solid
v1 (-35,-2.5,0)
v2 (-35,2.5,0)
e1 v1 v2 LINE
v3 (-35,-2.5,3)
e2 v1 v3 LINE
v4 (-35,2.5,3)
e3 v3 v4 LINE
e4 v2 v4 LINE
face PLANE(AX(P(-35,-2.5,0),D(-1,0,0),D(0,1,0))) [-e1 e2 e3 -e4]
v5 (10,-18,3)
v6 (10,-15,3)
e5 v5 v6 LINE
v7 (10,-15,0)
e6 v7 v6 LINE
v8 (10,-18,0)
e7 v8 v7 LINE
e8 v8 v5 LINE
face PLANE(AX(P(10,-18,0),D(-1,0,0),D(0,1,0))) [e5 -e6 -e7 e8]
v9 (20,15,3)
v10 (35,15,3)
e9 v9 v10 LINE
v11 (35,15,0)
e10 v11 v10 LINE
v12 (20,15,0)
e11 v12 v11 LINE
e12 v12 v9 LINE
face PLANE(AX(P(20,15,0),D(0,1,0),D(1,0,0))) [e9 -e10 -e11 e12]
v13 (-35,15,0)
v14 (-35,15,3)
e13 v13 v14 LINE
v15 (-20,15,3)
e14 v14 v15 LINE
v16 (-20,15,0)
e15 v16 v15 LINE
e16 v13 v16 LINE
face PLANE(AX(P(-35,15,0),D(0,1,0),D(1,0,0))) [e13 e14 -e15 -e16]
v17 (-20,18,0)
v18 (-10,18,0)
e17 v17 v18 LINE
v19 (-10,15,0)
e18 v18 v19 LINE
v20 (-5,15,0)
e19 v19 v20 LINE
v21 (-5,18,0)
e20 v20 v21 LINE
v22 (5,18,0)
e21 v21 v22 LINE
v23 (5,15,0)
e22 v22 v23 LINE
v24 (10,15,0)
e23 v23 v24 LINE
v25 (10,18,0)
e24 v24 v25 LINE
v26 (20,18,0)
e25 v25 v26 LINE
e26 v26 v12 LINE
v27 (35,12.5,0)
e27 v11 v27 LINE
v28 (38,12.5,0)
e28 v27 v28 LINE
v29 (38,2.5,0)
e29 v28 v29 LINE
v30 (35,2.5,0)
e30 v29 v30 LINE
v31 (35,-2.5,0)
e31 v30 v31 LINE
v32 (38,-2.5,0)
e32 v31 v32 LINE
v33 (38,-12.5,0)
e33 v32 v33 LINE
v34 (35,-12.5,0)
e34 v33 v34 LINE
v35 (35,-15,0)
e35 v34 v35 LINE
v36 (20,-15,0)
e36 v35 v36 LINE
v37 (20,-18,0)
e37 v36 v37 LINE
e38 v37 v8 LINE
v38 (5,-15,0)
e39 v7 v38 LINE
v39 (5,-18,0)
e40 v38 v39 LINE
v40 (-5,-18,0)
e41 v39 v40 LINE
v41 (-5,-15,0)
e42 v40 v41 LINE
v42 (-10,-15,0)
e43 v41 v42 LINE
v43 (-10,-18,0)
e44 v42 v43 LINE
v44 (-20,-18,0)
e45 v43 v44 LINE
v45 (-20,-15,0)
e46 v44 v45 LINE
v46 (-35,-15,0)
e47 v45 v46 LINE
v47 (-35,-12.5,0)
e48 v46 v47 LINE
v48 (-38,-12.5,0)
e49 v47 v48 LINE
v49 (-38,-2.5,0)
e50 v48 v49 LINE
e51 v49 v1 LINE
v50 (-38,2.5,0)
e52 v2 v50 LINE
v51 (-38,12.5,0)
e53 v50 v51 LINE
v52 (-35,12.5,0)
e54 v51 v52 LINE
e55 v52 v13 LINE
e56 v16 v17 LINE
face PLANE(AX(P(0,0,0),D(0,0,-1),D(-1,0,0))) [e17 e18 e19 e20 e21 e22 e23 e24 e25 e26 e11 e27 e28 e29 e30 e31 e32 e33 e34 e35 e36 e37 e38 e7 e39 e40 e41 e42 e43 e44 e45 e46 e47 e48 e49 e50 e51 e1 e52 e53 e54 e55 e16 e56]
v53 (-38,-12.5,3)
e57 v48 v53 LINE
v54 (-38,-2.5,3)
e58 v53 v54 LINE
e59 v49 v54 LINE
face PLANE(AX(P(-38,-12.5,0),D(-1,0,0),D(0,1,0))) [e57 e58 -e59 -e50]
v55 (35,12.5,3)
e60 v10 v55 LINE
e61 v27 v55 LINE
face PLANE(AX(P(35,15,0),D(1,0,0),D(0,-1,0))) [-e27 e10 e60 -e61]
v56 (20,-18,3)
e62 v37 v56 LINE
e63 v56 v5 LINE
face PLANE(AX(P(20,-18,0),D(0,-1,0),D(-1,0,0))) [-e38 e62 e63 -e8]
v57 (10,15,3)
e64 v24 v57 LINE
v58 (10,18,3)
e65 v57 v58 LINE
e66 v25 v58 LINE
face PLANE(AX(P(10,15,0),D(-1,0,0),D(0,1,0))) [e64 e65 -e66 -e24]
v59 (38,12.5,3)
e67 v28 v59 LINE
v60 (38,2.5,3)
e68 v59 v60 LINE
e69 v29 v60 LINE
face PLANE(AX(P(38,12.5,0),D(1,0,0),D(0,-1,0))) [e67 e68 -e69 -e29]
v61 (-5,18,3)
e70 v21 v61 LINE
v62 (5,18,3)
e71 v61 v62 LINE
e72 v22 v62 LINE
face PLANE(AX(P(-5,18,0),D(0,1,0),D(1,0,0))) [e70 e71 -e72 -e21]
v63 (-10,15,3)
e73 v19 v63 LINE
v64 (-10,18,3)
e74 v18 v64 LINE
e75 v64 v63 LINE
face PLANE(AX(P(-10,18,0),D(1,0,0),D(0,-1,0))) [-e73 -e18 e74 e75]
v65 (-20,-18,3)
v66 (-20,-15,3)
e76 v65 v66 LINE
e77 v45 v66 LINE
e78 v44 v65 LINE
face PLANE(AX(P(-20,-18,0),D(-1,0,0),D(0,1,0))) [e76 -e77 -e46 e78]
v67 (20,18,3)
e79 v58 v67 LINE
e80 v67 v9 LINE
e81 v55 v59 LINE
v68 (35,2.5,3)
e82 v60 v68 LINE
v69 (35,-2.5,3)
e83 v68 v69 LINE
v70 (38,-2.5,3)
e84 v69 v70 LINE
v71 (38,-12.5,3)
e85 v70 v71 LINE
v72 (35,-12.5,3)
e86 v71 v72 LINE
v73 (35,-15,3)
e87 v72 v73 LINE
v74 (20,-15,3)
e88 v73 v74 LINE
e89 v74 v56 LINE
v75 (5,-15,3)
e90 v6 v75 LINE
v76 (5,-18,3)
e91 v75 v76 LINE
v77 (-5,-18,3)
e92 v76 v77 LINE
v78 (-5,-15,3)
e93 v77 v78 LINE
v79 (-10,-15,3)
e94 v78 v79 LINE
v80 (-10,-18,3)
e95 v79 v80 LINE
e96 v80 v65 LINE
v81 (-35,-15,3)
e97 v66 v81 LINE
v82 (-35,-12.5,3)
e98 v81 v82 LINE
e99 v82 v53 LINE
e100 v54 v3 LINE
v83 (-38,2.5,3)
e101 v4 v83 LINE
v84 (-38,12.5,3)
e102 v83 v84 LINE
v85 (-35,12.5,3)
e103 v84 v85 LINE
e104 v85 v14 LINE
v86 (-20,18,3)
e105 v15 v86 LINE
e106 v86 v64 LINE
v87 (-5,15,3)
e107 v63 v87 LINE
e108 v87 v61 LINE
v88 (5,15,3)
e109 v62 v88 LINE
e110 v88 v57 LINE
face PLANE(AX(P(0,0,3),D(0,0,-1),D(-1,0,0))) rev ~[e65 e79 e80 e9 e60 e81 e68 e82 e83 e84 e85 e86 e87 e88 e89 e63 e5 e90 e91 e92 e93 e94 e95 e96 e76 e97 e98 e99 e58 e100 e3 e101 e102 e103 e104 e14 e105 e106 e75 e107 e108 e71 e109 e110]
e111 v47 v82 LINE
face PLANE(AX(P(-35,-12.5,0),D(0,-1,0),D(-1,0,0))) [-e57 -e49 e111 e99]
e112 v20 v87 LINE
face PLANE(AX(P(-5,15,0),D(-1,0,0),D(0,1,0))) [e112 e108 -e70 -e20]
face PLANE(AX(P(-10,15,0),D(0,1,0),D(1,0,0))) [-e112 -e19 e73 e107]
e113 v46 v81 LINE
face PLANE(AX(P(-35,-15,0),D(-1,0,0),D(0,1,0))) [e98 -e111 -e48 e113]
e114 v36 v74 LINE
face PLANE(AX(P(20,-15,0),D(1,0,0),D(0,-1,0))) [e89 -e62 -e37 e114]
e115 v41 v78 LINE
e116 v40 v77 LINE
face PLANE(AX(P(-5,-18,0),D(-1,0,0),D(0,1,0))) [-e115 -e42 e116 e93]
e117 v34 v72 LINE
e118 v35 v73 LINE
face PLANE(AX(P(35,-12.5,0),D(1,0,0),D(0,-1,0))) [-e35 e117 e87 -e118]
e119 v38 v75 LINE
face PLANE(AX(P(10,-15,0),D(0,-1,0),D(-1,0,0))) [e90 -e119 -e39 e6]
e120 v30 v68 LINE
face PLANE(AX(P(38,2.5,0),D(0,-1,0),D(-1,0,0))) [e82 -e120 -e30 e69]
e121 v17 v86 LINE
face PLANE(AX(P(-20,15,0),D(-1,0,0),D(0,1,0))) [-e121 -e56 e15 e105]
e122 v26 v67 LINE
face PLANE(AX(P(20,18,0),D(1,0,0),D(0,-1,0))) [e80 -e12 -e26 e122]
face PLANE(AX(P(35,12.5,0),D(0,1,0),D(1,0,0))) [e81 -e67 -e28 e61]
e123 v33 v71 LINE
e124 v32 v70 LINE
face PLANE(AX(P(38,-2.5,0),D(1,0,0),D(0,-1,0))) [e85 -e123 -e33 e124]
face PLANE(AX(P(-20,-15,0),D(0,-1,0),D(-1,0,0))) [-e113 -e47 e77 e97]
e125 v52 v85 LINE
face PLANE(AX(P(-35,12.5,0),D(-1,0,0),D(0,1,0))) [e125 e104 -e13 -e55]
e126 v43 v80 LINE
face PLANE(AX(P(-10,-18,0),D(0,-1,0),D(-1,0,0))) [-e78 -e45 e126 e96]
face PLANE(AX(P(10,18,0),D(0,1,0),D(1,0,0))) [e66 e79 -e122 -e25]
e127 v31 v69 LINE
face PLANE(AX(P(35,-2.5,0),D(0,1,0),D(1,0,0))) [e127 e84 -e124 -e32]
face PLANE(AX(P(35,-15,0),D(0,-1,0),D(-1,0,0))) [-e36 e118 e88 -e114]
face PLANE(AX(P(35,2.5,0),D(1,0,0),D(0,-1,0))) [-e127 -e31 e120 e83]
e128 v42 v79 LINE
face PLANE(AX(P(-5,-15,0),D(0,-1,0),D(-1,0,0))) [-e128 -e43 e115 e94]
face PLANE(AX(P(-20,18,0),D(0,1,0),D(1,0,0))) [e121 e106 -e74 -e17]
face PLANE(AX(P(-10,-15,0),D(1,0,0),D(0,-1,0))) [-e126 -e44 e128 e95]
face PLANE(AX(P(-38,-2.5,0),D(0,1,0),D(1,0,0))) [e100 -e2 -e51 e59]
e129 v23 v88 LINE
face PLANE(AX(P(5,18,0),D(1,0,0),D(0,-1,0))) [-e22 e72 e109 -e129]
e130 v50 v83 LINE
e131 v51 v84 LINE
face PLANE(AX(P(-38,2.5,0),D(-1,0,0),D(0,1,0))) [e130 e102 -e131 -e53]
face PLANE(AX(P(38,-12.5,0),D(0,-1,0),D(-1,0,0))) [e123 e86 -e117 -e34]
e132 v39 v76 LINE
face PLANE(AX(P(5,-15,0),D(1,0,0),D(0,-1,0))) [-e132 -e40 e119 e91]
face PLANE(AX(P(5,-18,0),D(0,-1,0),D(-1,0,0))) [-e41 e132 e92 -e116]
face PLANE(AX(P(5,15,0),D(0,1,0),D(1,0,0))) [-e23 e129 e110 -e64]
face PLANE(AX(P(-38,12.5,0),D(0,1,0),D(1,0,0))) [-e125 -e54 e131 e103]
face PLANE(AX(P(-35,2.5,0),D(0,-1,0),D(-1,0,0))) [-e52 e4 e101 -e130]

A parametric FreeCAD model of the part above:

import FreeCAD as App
import Part
import Sketcher
from FreeCAD import Vector
Q = App.Units.Quantity


def add_polygon(sketch, points):
    """Adds a closed chain of lines whose ends are joined by coincident constraints."""
    first, n = sketch.GeometryCount, len(points)
    for a, b in zip(points, points[1:] + points[:1]):
        sketch.addGeometry(Part.LineSegment(App.Vector(*a, 0), App.Vector(*b, 0)), False)
    for i in range(n):
        sketch.addConstraint(Sketcher.Constraint("Coincident", first + i, 2, first + (i + 1) % n, 1))

doc = App.newDocument("Part")
body = doc.addObject("PartDesign::Body", "Body")

sketch1 = body.newObject("Sketcher::SketchObject", "Sketch")
sketch1.AttachmentSupport = (doc.getObject("XY_Plane"), [""])
sketch1.MapMode = "FlatFace"
add_polygon(sketch1, [(-5, 18), (-5, 15), (-10, 15), (-10, 18), (-20, 18), (-20, 15), (-35, 15), (-35, 12.5), (-38, 12.5), (-38, 2.5), (-35, 2.5), (-35, -2.5), (-38, -2.5), (-38, -12.5), (-35, -12.5), (-35, -15), (-20, -15), (-20, -18), (-10, -18), (-10, -15), (-5, -15), (-5, -18), (5, -18), (5, -15), (10, -15), (10, -18), (20, -18), (20, -15), (35, -15), (35, -12.5), (38, -12.5), (38, -2.5), (35, -2.5), (35, 2.5), (38, 2.5), (38, 12.5), (35, 12.5), (35, 15), (20, 15), (20, 18), (10, 18), (10, 15), (5, 15), (5, 18)])
sketch1.addConstraint(Sketcher.Constraint("Vertical", 0))
sketch1.addConstraint(Sketcher.Constraint("Horizontal", 1))
sketch1.addConstraint(Sketcher.Constraint("Vertical", 2))
sketch1.addConstraint(Sketcher.Constraint("Horizontal", 3))
sketch1.addConstraint(Sketcher.Constraint("Vertical", 4))
sketch1.addConstraint(Sketcher.Constraint("Horizontal", 5))
sketch1.addConstraint(Sketcher.Constraint("Vertical", 6))
sketch1.addConstraint(Sketcher.Constraint("Horizontal", 7))
sketch1.addConstraint(Sketcher.Constraint("Vertical", 8))
sketch1.addConstraint(Sketcher.Constraint("Horizontal", 9))
sketch1.addConstraint(Sketcher.Constraint("Vertical", 10))
sketch1.addConstraint(Sketcher.Constraint("Horizontal", 11))
sketch1.addConstraint(Sketcher.Constraint("Vertical", 12))
sketch1.addConstraint(Sketcher.Constraint("Horizontal", 13))
sketch1.addConstraint(Sketcher.Constraint("Vertical", 14))
sketch1.addConstraint(Sketcher.Constraint("Horizontal", 15))
sketch1.addConstraint(Sketcher.Constraint("Vertical", 16))
sketch1.addConstraint(Sketcher.Constraint("Horizontal", 17))
sketch1.addConstraint(Sketcher.Constraint("Vertical", 18))
sketch1.addConstraint(Sketcher.Constraint("Horizontal", 19))
sketch1.addConstraint(Sketcher.Constraint("Vertical", 20))
sketch1.addConstraint(Sketcher.Constraint("Horizontal", 21))
sketch1.addConstraint(Sketcher.Constraint("Vertical", 22))
sketch1.addConstraint(Sketcher.Constraint("Horizontal", 23))
sketch1.addConstraint(Sketcher.Constraint("Vertical", 24))
sketch1.addConstraint(Sketcher.Constraint("Horizontal", 25))
sketch1.addConstraint(Sketcher.Constraint("Vertical", 26))
sketch1.addConstraint(Sketcher.Constraint("Horizontal", 27))
sketch1.addConstraint(Sketcher.Constraint("Vertical", 28))
sketch1.addConstraint(Sketcher.Constraint("Horizontal", 29))
sketch1.addConstraint(Sketcher.Constraint("Vertical", 30))
sketch1.addConstraint(Sketcher.Constraint("Horizontal", 31))
sketch1.addConstraint(Sketcher.Constraint("Vertical", 32))
sketch1.addConstraint(Sketcher.Constraint("Horizontal", 33))
sketch1.addConstraint(Sketcher.Constraint("Vertical", 34))
sketch1.addConstraint(Sketcher.Constraint("Horizontal", 35))
sketch1.addConstraint(Sketcher.Constraint("Vertical", 36))
sketch1.addConstraint(Sketcher.Constraint("Horizontal", 37))
sketch1.addConstraint(Sketcher.Constraint("Vertical", 38))
sketch1.addConstraint(Sketcher.Constraint("Horizontal", 39))
sketch1.addConstraint(Sketcher.Constraint("Vertical", 40))
sketch1.addConstraint(Sketcher.Constraint("Horizontal", 41))
sketch1.addConstraint(Sketcher.Constraint("Vertical", 42))
sketch1.addConstraint(Sketcher.Constraint("Horizontal", 43))
sketch1.addConstraint(Sketcher.Constraint("Symmetric", 0, 2, 22, 2, -1, 1))
sketch1.addConstraint(Sketcher.Constraint("Symmetric", 2, 2, 24, 2, -1, 1))
sketch1.addConstraint(Sketcher.Constraint("Symmetric", 4, 2, 26, 2, -1, 1))
sketch1.addConstraint(Sketcher.Constraint("Symmetric", 6, 2, 28, 2, -1, 1))
sketch1.addConstraint(Sketcher.Constraint("Symmetric", 8, 2, 30, 2, -1, 1))
sketch1.addConstraint(Sketcher.Constraint("Symmetric", 10, 2, 32, 2, -1, 1))
sketch1.addConstraint(Sketcher.Constraint("Symmetric", 12, 2, 34, 2, -1, 1))
sketch1.addConstraint(Sketcher.Constraint("Symmetric", 14, 2, 36, 2, -1, 1))
sketch1.addConstraint(Sketcher.Constraint("Symmetric", 16, 2, 38, 2, -1, 1))
sketch1.addConstraint(Sketcher.Constraint("Symmetric", 18, 2, 40, 2, -1, 1))
sketch1.addConstraint(Sketcher.Constraint("Symmetric", 20, 2, 42, 2, -1, 1))
sketch1.addConstraint(Sketcher.Constraint("Symmetric", 19, 2, 22, 2, -2))
sketch1.addConstraint(Sketcher.Constraint("Symmetric", 17, 2, 24, 2, -2))
sketch1.addConstraint(Sketcher.Constraint("Symmetric", 15, 2, 26, 2, -2))
sketch1.addConstraint(Sketcher.Constraint("Symmetric", 13, 2, 28, 2, -2))
sketch1.addConstraint(Sketcher.Constraint("Symmetric", 11, 2, 30, 2, -2))
sketch1.addConstraint(Sketcher.Constraint("Horizontal", 1, 2, 4, 2))
sketch1.addConstraint(Sketcher.Constraint("Horizontal", 17, 2, 20, 2))
sketch1.addConstraint(Sketcher.Constraint("Vertical", 6, 2, 9, 2))
sketch1.addConstraint(Sketcher.Constraint("Equal", 17, 21))
sketch1.addConstraint(Sketcher.Constraint("Equal", 35, 0))
sketch1.addConstraint(Sketcher.Constraint("Equal", 43, 8))
sketch1.addConstraint(Sketcher.Constraint("Equal", 41, 10))
sketch1.addConstraint(Sketcher.Constraint("DistanceX", 1, 2, 1, 1, Q("5 mm")))
sketch1.addConstraint(Sketcher.Constraint("DistanceX", 3, 2, 3, 1, Q("10 mm")))
sketch1.addConstraint(Sketcher.Constraint("DistanceX", 5, 2, 5, 1, Q("15 mm")))
sketch1.addConstraint(Sketcher.Constraint("DistanceX", 7, 2, 7, 1, Q("3 mm")))
sketch1.addConstraint(Sketcher.Constraint("DistanceY", 6, 2, 6, 1, Q("2.5 mm")))
pad1 = body.newObject("PartDesign::Pad", "Pad")
pad1.Profile = sketch1
pad1.Length = 3

doc.recompute()
